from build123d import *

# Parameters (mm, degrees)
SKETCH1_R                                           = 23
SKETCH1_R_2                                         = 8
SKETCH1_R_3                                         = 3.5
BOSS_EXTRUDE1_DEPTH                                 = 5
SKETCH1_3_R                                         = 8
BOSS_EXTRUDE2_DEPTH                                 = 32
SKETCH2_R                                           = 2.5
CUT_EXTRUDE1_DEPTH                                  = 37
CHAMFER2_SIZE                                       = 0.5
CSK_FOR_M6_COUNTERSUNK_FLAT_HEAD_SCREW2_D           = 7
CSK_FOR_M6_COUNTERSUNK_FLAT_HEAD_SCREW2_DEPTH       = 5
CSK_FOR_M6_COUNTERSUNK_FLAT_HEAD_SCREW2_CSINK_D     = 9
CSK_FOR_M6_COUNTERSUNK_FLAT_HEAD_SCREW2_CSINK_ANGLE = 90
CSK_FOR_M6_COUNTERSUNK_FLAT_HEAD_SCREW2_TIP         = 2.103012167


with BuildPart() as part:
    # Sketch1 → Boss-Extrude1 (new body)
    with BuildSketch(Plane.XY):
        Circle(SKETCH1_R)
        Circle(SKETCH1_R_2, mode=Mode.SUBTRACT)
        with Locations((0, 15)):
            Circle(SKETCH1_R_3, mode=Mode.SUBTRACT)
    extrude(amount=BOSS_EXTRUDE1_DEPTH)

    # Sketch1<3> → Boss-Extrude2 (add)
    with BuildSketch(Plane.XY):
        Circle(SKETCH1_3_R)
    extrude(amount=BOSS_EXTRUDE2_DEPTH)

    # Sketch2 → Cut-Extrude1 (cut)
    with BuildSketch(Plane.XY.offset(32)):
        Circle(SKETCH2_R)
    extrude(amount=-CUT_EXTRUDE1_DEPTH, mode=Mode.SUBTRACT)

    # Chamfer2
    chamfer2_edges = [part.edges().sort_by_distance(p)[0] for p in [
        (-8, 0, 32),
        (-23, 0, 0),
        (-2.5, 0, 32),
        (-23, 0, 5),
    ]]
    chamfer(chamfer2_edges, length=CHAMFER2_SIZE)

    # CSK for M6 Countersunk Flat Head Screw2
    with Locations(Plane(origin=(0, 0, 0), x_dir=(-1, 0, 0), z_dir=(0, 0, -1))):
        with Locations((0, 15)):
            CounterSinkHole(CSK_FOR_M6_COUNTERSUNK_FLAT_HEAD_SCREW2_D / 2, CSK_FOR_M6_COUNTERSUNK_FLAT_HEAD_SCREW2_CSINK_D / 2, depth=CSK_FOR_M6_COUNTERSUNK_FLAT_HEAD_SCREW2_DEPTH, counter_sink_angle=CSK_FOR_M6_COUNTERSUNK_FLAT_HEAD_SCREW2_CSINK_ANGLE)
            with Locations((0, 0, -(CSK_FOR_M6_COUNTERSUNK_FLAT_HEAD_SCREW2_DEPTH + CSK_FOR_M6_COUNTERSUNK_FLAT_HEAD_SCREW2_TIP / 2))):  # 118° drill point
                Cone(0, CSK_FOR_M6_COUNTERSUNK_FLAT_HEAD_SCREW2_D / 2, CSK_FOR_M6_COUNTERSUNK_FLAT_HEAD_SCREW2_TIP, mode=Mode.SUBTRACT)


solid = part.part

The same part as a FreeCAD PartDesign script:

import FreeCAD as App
import Part
import Sketcher

V = App.Vector


def edges_at(feature, points):
    """Names of the edges that pass closest to the given points."""
    edges = feature.Shape.Edges
    near = lambda p: min(range(len(edges)), key=lambda i: edges[i].distToShape(Part.Vertex(*p))[0])
    return sorted({f"Edge{near(p) + 1}" for p in points})

doc = App.newDocument("Part")
body = doc.addObject("PartDesign::Body", "Body")

sketch1 = doc.addObject("Sketcher::SketchObject", "Sketch")
body.addObject(sketch1)
sketch1.AttachmentSupport = (doc.XY_Plane, [""])
sketch1.MapMode = "FlatFace"
sketch1.addGeometry([
    Part.Circle(V(0, 0, 0), V(0, 0, 1), 23),
    Part.Circle(V(0, 0, 0), V(0, 0, 1), 8),
    Part.Circle(V(0, 15, 0), V(0, 0, 1), 3.5),
], False)
sketch1.addConstraint([
    Sketcher.Constraint("Coincident", 0, 3, -1, 1),
    Sketcher.Constraint("Coincident", 1, 3, -1, 1),
    Sketcher.Constraint("PointOnObject", 2, 3, -2),
    Sketcher.Constraint("Diameter", 0, 46.0),
    Sketcher.Constraint("Diameter", 1, 16.0),
    Sketcher.Constraint("Diameter", 2, 7.0),
    Sketcher.Constraint("DistanceY", -1, 1, 2, 3, 15.0),
])
pad1 = doc.addObject("PartDesign::Pad", "Pad")
body.addObject(pad1)
pad1.Profile = sketch1
pad1.Length = 5

sketch2 = doc.addObject("Sketcher::SketchObject", "Sketch001")
body.addObject(sketch2)
sketch2.AttachmentSupport = (doc.XY_Plane, [""])
sketch2.MapMode = "FlatFace"
sketch2.addGeometry(Part.Circle(V(0, 0, 0), V(0, 0, 1), 8), False)
sketch2.addConstraint([
    Sketcher.Constraint("Coincident", 0, 3, -1, 1),
    Sketcher.Constraint("Diameter", 0, 16.0),
])
pad2 = doc.addObject("PartDesign::Pad", "Pad001")
body.addObject(pad2)
pad2.Profile = sketch2
pad2.Length = 32

sketch3 = doc.addObject("Sketcher::SketchObject", "Sketch002")
body.addObject(sketch3)
sketch3.AttachmentSupport = (doc.XY_Plane, [""])
sketch3.MapMode = "FlatFace"
sketch3.AttachmentOffset = App.Placement(V(0, 0, 32), App.Rotation())
sketch3.addGeometry(Part.Circle(V(0, 0, 0), V(0, 0, 1), 2.5), False)
sketch3.addConstraint([
    Sketcher.Constraint("Coincident", 0, 3, -1, 1),
    Sketcher.Constraint("Diameter", 0, 5.0),
])
pocket1 = doc.addObject("PartDesign::Pocket", "Pocket")
body.addObject(pocket1)
pocket1.Profile = sketch3
pocket1.Length = 37
doc.recompute()

chamfer = doc.addObject("PartDesign::Chamfer", "Chamfer")
body.addObject(chamfer)
chamfer.Base = (pocket1, edges_at(pocket1, [
    (-8, 0, 32),
    (-23, 0, 0),
    (-2.5, 0, 32),
    (-23, 0, 5),
]))
chamfer.Size = 0.5

sketch4 = doc.addObject("Sketcher::SketchObject", "Sketch003")
body.addObject(sketch4)
sketch4.AttachmentSupport = (doc.XY_Plane, [""])
sketch4.MapMode = "FlatFace"
sketch4.addGeometry(Part.Circle(V(0, 15, 0), V(0, 0, 1), 3.5), False)
sketch4.addConstraint([
    Sketcher.Constraint("PointOnObject", 0, 3, -2),
    Sketcher.Constraint("Diameter", 0, 7.0),
    Sketcher.Constraint("DistanceY", -1, 1, 0, 3, 15.0),
])
doc.recompute()
hole = doc.addObject("PartDesign::Hole", "Hole")
body.addObject(hole)
hole.Profile = sketch4
hole.ThreadType = "None"
hole.Diameter = 7
hole.DepthType = "Dimension"
hole.Depth = 5
hole.DrillPoint = "Angled"
hole.DrillPointAngle = 118
hole.HoleCutType = "Countersink"
hole.HoleCutDiameter = 9
hole.HoleCutCountersinkAngle = 90
hole.Reversed = True

doc.recompute()
